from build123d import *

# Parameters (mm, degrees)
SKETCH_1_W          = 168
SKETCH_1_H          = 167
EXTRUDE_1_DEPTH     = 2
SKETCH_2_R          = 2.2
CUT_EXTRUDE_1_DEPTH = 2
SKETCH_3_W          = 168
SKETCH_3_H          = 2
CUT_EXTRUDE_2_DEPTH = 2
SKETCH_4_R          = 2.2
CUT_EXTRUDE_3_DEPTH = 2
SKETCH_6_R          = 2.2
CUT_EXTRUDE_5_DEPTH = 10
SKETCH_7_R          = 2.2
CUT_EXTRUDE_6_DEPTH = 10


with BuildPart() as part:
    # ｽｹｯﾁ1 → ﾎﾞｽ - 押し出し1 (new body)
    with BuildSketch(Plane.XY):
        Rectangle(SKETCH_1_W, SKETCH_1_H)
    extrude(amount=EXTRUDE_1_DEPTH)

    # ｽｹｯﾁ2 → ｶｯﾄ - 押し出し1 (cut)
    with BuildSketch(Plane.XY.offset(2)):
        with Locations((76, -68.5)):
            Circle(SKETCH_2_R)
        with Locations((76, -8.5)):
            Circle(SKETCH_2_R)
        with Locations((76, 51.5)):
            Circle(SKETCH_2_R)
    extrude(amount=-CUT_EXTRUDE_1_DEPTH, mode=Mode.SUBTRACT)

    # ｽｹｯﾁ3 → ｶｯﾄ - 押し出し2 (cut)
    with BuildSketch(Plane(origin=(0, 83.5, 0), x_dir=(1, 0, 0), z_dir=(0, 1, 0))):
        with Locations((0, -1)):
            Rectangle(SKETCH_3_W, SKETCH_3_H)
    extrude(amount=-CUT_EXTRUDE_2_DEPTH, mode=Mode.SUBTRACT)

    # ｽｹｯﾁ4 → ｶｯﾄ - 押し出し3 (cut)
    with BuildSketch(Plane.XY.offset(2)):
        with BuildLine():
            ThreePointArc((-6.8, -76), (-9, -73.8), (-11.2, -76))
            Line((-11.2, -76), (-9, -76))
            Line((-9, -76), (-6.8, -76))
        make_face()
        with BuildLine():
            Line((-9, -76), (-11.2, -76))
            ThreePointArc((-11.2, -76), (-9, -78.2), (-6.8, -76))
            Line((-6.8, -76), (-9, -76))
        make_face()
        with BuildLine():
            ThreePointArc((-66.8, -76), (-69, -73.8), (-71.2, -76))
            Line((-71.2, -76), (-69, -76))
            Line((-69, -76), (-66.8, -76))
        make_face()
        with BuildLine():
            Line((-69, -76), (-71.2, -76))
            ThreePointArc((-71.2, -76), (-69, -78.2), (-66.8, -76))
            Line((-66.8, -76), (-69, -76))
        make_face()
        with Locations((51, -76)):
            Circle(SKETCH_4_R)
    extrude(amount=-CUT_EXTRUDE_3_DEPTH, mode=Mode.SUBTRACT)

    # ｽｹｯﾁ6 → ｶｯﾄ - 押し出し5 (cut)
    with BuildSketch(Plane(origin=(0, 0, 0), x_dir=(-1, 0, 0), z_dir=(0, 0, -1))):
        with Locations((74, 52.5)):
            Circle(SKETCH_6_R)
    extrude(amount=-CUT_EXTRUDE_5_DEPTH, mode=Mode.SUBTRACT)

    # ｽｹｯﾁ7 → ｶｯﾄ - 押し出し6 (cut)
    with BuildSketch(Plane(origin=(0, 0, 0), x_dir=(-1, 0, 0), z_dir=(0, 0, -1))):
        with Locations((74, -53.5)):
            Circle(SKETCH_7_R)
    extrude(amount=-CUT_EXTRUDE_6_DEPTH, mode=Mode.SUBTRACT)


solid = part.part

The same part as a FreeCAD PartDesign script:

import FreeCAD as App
import Part
import Sketcher

V = App.Vector

doc = App.newDocument("Part")
body = doc.addObject("PartDesign::Body", "Body")

# Sketch on XY plane
sketch1 = doc.addObject("Sketcher::SketchObject", "Sketch")
body.addObject(sketch1)
sketch1.AttachmentSupport = (doc.XY_Plane, [""])
sketch1.MapMode = "FlatFace"
sketch1.addGeometry(Part.LineSegment(V(-84, 84, 0), V(-84, -84, 0)), False)
sketch1.addGeometry(Part.LineSegment(V(-84, -84, 0), V(84, -84, 0)), False)
sketch1.addGeometry(Part.LineSegment(V(84, -84, 0), V(84, 84, 0)), False)
sketch1.addGeometry(Part.LineSegment(V(84, 84, 0), V(-84, 84, 0)), False)
sketch1.addConstraint(Sketcher.Constraint("Coincident", 0, 2, 1, 1))
sketch1.addConstraint(Sketcher.Constraint("Coincident", 1, 2, 2, 1))
sketch1.addConstraint(Sketcher.Constraint("Coincident", 2, 2, 3, 1))
sketch1.addConstraint(Sketcher.Constraint("Coincident", 3, 2, 0, 1))
sketch1.addConstraint(Sketcher.Constraint("Vertical", 0))
sketch1.addConstraint(Sketcher.Constraint("Horizontal", 1))
sketch1.addConstraint(Sketcher.Constraint("Vertical", 2))
sketch1.addConstraint(Sketcher.Constraint("Horizontal", 3))
sketch1.addConstraint(Sketcher.Constraint("Symmetric", 0, 2, 2, 2, -1, 1))
sketch1.addConstraint(Sketcher.Constraint("DistanceX", 1, 1, 1, 2, 168.0))
sketch1.addConstraint(Sketcher.Constraint("DistanceY", 0, 2, 0, 1, 167.0))
pad1 = doc.addObject("PartDesign::Pad", "Pad")
body.addObject(pad1)
pad1.Profile = sketch1
pad1.Length = 2

# Sketch on XY plane
sketch2 = doc.addObject("Sketcher::SketchObject", "Sketch001")
body.addObject(sketch2)
sketch2.AttachmentSupport = (doc.XY_Plane, [""])
sketch2.MapMode = "FlatFace"
sketch2.AttachmentOffset = App.Placement(V(0, 0, 2), App.Rotation())
sketch2.addGeometry(Part.Circle(V(76, -68.5, 0), V(0, 0, 1), 2.2), False)
sketch2.addGeometry(Part.Circle(V(76, -8.5, 0), V(0, 0, 1), 2.2), False)
sketch2.addGeometry(Part.Circle(V(76, 51.5, 0), V(0, 0, 1), 2.2), False)
sketch2.addConstraint(Sketcher.Constraint("Equal", 0, 1))
sketch2.addConstraint(Sketcher.Constraint("Equal", 1, 2))
sketch2.addConstraint(Sketcher.Constraint("Vertical", 0, 3, 1, 3))
sketch2.addConstraint(Sketcher.Constraint("Vertical", 1, 3, 2, 3))
sketch2.addConstraint(Sketcher.Constraint("Diameter", 0, 4.4))
sketch2.addConstraint(Sketcher.Constraint("DistanceX", -1, 1, 0, 3, 76.0))
sketch2.addConstraint(Sketcher.Constraint("DistanceY", 0, 3, 1, 3, 60.0))
sketch2.addConstraint(Sketcher.Constraint("DistanceY", 1, 3, 2, 3, 60.0))
sketch2.addConstraint(Sketcher.Constraint("DistanceY", 0, 3, -1, 1, 68.5))
pocket1 = doc.addObject("PartDesign::Pocket", "Pocket")
body.addObject(pocket1)
pocket1.Profile = sketch2
pocket1.Length = 2

# Sketch on XZ plane
sketch3 = doc.addObject("Sketcher::SketchObject", "Sketch002")
body.addObject(sketch3)
sketch3.AttachmentSupport = (doc.XZ_Plane, [""])
sketch3.MapMode = "FlatFace"
sketch3.AttachmentOffset = App.Placement(V(0, 0, -83.5), App.Rotation())
sketch3.addGeometry(Part.LineSegment(V(-84, 0, 0), V(-84, 2, 0)), False)
sketch3.addGeometry(Part.LineSegment(V(-84, 2, 0), V(84, 2, 0)), False)
sketch3.addGeometry(Part.LineSegment(V(84, 2, 0), V(84, 0, 0)), False)
sketch3.addGeometry(Part.LineSegment(V(84, 0, 0), V(-84, 0, 0)), False)
sketch3.addConstraint(Sketcher.Constraint("Coincident", 0, 2, 1, 1))
sketch3.addConstraint(Sketcher.Constraint("Coincident", 1, 2, 2, 1))
sketch3.addConstraint(Sketcher.Constraint("Coincident", 2, 2, 3, 1))
sketch3.addConstraint(Sketcher.Constraint("Coincident", 3, 2, 0, 1))
sketch3.addConstraint(Sketcher.Constraint("Vertical", 0))
sketch3.addConstraint(Sketcher.Constraint("Horizontal", 1))
sketch3.addConstraint(Sketcher.Constraint("Vertical", 2))
sketch3.addConstraint(Sketcher.Constraint("Horizontal", 3))
sketch3.addConstraint(Sketcher.Constraint("Symmetric", 2, 2, 3, 2, -1, 1))
sketch3.addConstraint(Sketcher.Constraint("DistanceX", 1, 1, 1, 2, 168.0))
sketch3.addConstraint(Sketcher.Constraint("DistanceY", 0, 1, 0, 2, 2.0))
pocket2 = doc.addObject("PartDesign::Pocket", "Pocket001")
body.addObject(pocket2)
pocket2.Profile = sketch3
pocket2.Length = 2
pocket2.Reversed = True

# Sketch on XY plane
sketch4 = doc.addObject("Sketcher::SketchObject", "Sketch003")
body.addObject(sketch4)
sketch4.AttachmentSupport = (doc.XY_Plane, [""])
sketch4.MapMode = "FlatFace"
sketch4.AttachmentOffset = App.Placement(V(0, 0, 2), App.Rotation())
sketch4.addGeometry(Part.Circle(V(-9, -76, 0), V(0, 0, 1), 2.2), False)
sketch4.addGeometry(Part.Circle(V(-69, -76, 0), V(0, 0, 1), 2.2), False)
sketch4.addGeometry(Part.Circle(V(51, -76, 0), V(0, 0, 1), 2.2), False)
sketch4.addConstraint(Sketcher.Constraint("Equal", 0, 1))
sketch4.addConstraint(Sketcher.Constraint("Equal", 1, 2))
sketch4.addConstraint(Sketcher.Constraint("Horizontal", 0, 3, 1, 3))
sketch4.addConstraint(Sketcher.Constraint("Horizontal", 1, 3, 2, 3))
sketch4.addConstraint(Sketcher.Constraint("Diameter", 0, 4.4))
sketch4.addConstraint(Sketcher.Constraint("DistanceX", 0, 3, -1, 1, 9.0))
sketch4.addConstraint(Sketcher.Constraint("DistanceY", 0, 3, -1, 1, 76.0))
sketch4.addConstraint(Sketcher.Constraint("DistanceX", 1, 3, -1, 1, 69.0))
sketch4.addConstraint(Sketcher.Constraint("DistanceX", -1, 1, 2, 3, 51.0))
pocket3 = doc.addObject("PartDesign::Pocket", "Pocket002")
body.addObject(pocket3)
pocket3.Profile = sketch4
pocket3.Length = 2

# Sketch on XY plane
sketch5 = doc.addObject("Sketcher::SketchObject", "Sketch004")
body.addObject(sketch5)
sketch5.AttachmentSupport = (doc.XY_Plane, [""])
sketch5.MapMode = "FlatFace"
sketch5.addGeometry(Part.Circle(V(-74, 52.5, 0), V(0, 0, 1), 2.2), False)
sketch5.addConstraint(Sketcher.Constraint("Diameter", 0, 4.4))
sketch5.addConstraint(Sketcher.Constraint("DistanceX", 0, 3, -1, 1, 74.0))
sketch5.addConstraint(Sketcher.Constraint("DistanceY", -1, 1, 0, 3, 52.5))
pocket4 = doc.addObject("PartDesign::Pocket", "Pocket003")
body.addObject(pocket4)
pocket4.Profile = sketch5
pocket4.Length = 10
pocket4.Reversed = True

# Sketch on XY plane
sketch6 = doc.addObject("Sketcher::SketchObject", "Sketch005")
body.addObject(sketch6)
sketch6.AttachmentSupport = (doc.XY_Plane, [""])
sketch6.MapMode = "FlatFace"
sketch6.addGeometry(Part.Circle(V(-74, -53.5, 0), V(0, 0, 1), 2.2), False)
sketch6.addConstraint(Sketcher.Constraint("Diameter", 0, 4.4))
sketch6.addConstraint(Sketcher.Constraint("DistanceX", 0, 3, -1, 1, 74.0))
sketch6.addConstraint(Sketcher.Constraint("DistanceY", 0, 3, -1, 1, 53.5))
pocket5 = doc.addObject("PartDesign::Pocket", "Pocket004")
body.addObject(pocket5)
pocket5.Profile = sketch6
pocket5.Length = 10
pocket5.Reversed = True

doc.recompute()
